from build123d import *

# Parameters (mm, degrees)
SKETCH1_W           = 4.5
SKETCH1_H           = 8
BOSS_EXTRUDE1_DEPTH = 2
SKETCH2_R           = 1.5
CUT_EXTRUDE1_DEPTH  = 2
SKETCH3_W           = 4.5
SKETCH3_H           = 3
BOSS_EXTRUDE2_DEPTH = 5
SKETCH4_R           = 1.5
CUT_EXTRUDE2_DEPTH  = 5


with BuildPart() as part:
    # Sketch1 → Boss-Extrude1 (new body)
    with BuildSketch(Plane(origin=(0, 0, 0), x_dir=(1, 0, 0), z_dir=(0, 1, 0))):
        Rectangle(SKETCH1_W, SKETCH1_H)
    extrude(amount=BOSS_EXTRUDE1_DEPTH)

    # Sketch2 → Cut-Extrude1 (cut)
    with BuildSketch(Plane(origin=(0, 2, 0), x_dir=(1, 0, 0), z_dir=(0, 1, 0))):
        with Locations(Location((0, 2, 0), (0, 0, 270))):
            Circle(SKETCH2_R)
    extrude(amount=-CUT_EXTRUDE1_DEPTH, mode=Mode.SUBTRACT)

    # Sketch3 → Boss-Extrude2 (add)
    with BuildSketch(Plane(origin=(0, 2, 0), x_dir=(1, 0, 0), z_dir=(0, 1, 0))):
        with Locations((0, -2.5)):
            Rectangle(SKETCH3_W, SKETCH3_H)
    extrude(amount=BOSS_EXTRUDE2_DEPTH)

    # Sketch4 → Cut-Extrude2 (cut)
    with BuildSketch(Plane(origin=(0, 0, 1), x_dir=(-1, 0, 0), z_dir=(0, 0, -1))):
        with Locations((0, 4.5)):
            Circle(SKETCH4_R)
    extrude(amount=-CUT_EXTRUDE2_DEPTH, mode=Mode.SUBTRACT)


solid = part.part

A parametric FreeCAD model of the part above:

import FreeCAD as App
import Part
import Sketcher

V = App.Vector

doc = App.newDocument("Part")
body = doc.addObject("PartDesign::Body", "Body")

# Sketch on XZ plane
sketch1 = doc.addObject("Sketcher::SketchObject", "Sketch")
body.addObject(sketch1)
sketch1.AttachmentSupport = (doc.XZ_Plane, [""])
sketch1.MapMode = "FlatFace"
sketch1.addGeometry(Part.LineSegment(V(-2.25, -4, 0), V(-2.25, 4, 0)), False)
sketch1.addGeometry(Part.LineSegment(V(-2.25, 4, 0), V(2.25, 4, 0)), False)
sketch1.addGeometry(Part.LineSegment(V(2.25, 4, 0), V(2.25, -4, 0)), False)
sketch1.addGeometry(Part.LineSegment(V(2.25, -4, 0), V(-2.25, -4, 0)), False)
sketch1.addConstraint(Sketcher.Constraint("Coincident", 0, 2, 1, 1))
sketch1.addConstraint(Sketcher.Constraint("Coincident", 1, 2, 2, 1))
sketch1.addConstraint(Sketcher.Constraint("Coincident", 2, 2, 3, 1))
sketch1.addConstraint(Sketcher.Constraint("Coincident", 3, 2, 0, 1))
sketch1.addConstraint(Sketcher.Constraint("Vertical", 0))
sketch1.addConstraint(Sketcher.Constraint("Horizontal", 1))
sketch1.addConstraint(Sketcher.Constraint("Vertical", 2))
sketch1.addConstraint(Sketcher.Constraint("Horizontal", 3))
sketch1.addConstraint(Sketcher.Constraint("Symmetric", 0, 2, 2, 2, -1, 1))
sketch1.addConstraint(Sketcher.Constraint("DistanceY", 0, 1, 0, 2, 8.0))
sketch1.addConstraint(Sketcher.Constraint("DistanceX", 1, 1, 1, 2, 4.5))
pad1 = doc.addObject("PartDesign::Pad", "Pad")
body.addObject(pad1)
pad1.Profile = sketch1
pad1.Length = 2
pad1.Reversed = True

# Sketch on XZ plane
sketch2 = doc.addObject("Sketcher::SketchObject", "Sketch001")
body.addObject(sketch2)
sketch2.AttachmentSupport = (doc.XZ_Plane, [""])
sketch2.MapMode = "FlatFace"
sketch2.AttachmentOffset = App.Placement(V(0, 0, -2), App.Rotation())
sketch2.addGeometry(Part.Circle(V(0, -2, 0), V(0, 0, 1), 1.5), False)
sketch2.addConstraint(Sketcher.Constraint("PointOnObject", 0, 3, -2))
sketch2.addConstraint(Sketcher.Constraint("Diameter", 0, 3.0))
sketch2.addConstraint(Sketcher.Constraint("DistanceY", 0, 3, -1, 1, 2.0))
pocket1 = doc.addObject("PartDesign::Pocket", "Pocket")
body.addObject(pocket1)
pocket1.Profile = sketch2
pocket1.Length = 2
pocket1.Reversed = True

# Sketch on XZ plane
sketch3 = doc.addObject("Sketcher::SketchObject", "Sketch002")
body.addObject(sketch3)
sketch3.AttachmentSupport = (doc.XZ_Plane, [""])
sketch3.MapMode = "FlatFace"
sketch3.AttachmentOffset = App.Placement(V(0, 0, -2), App.Rotation())
sketch3.addGeometry(Part.LineSegment(V(-2.25, 1, 0), V(-2.25, 4, 0)), False)
sketch3.addGeometry(Part.LineSegment(V(-2.25, 4, 0), V(2.25, 4, 0)), False)
sketch3.addGeometry(Part.LineSegment(V(2.25, 4, 0), V(2.25, 1, 0)), False)
sketch3.addGeometry(Part.LineSegment(V(2.25, 1, 0), V(-2.25, 1, 0)), False)
sketch3.addConstraint(Sketcher.Constraint("Coincident", 0, 2, 1, 1))
sketch3.addConstraint(Sketcher.Constraint("Coincident", 1, 2, 2, 1))
sketch3.addConstraint(Sketcher.Constraint("Coincident", 2, 2, 3, 1))
sketch3.addConstraint(Sketcher.Constraint("Coincident", 3, 2, 0, 1))
sketch3.addConstraint(Sketcher.Constraint("Vertical", 0))
sketch3.addConstraint(Sketcher.Constraint("Horizontal", 1))
sketch3.addConstraint(Sketcher.Constraint("Vertical", 2))
sketch3.addConstraint(Sketcher.Constraint("Horizontal", 3))
sketch3.addConstraint(Sketcher.Constraint("DistanceY", 0, 1, 0, 2, 3.0))
sketch3.addConstraint(Sketcher.Constraint("DistanceX", 1, 1, 1, 2, 4.5))
sketch3.addConstraint(Sketcher.Constraint("DistanceY", -1, 1, 0, 2, 4.0))
sketch3.addConstraint(Sketcher.Constraint("DistanceX", 0, 2, -1, 1, 2.25))
pad2 = doc.addObject("PartDesign::Pad", "Pad001")
body.addObject(pad2)
pad2.Profile = sketch3
pad2.Length = 5
pad2.Reversed = True

# Sketch on XY plane
sketch4 = doc.addObject("Sketcher::SketchObject", "Sketch003")
body.addObject(sketch4)
sketch4.AttachmentSupport = (doc.XY_Plane, [""])
sketch4.MapMode = "FlatFace"
sketch4.AttachmentOffset = App.Placement(V(0, 0, 1), App.Rotation())
sketch4.addGeometry(Part.Circle(V(0, 4.5, 0), V(0, 0, 1), 1.5), False)
sketch4.addConstraint(Sketcher.Constraint("PointOnObject", 0, 3, -2))
sketch4.addConstraint(Sketcher.Constraint("Diameter", 0, 3.0))
sketch4.addConstraint(Sketcher.Constraint("DistanceY", -1, 1, 0, 3, 4.5))
pocket2 = doc.addObject("PartDesign::Pocket", "Pocket001")
body.addObject(pocket2)
pocket2.Profile = sketch4
pocket2.Length = 5
pocket2.Reversed = True

doc.recompute()
